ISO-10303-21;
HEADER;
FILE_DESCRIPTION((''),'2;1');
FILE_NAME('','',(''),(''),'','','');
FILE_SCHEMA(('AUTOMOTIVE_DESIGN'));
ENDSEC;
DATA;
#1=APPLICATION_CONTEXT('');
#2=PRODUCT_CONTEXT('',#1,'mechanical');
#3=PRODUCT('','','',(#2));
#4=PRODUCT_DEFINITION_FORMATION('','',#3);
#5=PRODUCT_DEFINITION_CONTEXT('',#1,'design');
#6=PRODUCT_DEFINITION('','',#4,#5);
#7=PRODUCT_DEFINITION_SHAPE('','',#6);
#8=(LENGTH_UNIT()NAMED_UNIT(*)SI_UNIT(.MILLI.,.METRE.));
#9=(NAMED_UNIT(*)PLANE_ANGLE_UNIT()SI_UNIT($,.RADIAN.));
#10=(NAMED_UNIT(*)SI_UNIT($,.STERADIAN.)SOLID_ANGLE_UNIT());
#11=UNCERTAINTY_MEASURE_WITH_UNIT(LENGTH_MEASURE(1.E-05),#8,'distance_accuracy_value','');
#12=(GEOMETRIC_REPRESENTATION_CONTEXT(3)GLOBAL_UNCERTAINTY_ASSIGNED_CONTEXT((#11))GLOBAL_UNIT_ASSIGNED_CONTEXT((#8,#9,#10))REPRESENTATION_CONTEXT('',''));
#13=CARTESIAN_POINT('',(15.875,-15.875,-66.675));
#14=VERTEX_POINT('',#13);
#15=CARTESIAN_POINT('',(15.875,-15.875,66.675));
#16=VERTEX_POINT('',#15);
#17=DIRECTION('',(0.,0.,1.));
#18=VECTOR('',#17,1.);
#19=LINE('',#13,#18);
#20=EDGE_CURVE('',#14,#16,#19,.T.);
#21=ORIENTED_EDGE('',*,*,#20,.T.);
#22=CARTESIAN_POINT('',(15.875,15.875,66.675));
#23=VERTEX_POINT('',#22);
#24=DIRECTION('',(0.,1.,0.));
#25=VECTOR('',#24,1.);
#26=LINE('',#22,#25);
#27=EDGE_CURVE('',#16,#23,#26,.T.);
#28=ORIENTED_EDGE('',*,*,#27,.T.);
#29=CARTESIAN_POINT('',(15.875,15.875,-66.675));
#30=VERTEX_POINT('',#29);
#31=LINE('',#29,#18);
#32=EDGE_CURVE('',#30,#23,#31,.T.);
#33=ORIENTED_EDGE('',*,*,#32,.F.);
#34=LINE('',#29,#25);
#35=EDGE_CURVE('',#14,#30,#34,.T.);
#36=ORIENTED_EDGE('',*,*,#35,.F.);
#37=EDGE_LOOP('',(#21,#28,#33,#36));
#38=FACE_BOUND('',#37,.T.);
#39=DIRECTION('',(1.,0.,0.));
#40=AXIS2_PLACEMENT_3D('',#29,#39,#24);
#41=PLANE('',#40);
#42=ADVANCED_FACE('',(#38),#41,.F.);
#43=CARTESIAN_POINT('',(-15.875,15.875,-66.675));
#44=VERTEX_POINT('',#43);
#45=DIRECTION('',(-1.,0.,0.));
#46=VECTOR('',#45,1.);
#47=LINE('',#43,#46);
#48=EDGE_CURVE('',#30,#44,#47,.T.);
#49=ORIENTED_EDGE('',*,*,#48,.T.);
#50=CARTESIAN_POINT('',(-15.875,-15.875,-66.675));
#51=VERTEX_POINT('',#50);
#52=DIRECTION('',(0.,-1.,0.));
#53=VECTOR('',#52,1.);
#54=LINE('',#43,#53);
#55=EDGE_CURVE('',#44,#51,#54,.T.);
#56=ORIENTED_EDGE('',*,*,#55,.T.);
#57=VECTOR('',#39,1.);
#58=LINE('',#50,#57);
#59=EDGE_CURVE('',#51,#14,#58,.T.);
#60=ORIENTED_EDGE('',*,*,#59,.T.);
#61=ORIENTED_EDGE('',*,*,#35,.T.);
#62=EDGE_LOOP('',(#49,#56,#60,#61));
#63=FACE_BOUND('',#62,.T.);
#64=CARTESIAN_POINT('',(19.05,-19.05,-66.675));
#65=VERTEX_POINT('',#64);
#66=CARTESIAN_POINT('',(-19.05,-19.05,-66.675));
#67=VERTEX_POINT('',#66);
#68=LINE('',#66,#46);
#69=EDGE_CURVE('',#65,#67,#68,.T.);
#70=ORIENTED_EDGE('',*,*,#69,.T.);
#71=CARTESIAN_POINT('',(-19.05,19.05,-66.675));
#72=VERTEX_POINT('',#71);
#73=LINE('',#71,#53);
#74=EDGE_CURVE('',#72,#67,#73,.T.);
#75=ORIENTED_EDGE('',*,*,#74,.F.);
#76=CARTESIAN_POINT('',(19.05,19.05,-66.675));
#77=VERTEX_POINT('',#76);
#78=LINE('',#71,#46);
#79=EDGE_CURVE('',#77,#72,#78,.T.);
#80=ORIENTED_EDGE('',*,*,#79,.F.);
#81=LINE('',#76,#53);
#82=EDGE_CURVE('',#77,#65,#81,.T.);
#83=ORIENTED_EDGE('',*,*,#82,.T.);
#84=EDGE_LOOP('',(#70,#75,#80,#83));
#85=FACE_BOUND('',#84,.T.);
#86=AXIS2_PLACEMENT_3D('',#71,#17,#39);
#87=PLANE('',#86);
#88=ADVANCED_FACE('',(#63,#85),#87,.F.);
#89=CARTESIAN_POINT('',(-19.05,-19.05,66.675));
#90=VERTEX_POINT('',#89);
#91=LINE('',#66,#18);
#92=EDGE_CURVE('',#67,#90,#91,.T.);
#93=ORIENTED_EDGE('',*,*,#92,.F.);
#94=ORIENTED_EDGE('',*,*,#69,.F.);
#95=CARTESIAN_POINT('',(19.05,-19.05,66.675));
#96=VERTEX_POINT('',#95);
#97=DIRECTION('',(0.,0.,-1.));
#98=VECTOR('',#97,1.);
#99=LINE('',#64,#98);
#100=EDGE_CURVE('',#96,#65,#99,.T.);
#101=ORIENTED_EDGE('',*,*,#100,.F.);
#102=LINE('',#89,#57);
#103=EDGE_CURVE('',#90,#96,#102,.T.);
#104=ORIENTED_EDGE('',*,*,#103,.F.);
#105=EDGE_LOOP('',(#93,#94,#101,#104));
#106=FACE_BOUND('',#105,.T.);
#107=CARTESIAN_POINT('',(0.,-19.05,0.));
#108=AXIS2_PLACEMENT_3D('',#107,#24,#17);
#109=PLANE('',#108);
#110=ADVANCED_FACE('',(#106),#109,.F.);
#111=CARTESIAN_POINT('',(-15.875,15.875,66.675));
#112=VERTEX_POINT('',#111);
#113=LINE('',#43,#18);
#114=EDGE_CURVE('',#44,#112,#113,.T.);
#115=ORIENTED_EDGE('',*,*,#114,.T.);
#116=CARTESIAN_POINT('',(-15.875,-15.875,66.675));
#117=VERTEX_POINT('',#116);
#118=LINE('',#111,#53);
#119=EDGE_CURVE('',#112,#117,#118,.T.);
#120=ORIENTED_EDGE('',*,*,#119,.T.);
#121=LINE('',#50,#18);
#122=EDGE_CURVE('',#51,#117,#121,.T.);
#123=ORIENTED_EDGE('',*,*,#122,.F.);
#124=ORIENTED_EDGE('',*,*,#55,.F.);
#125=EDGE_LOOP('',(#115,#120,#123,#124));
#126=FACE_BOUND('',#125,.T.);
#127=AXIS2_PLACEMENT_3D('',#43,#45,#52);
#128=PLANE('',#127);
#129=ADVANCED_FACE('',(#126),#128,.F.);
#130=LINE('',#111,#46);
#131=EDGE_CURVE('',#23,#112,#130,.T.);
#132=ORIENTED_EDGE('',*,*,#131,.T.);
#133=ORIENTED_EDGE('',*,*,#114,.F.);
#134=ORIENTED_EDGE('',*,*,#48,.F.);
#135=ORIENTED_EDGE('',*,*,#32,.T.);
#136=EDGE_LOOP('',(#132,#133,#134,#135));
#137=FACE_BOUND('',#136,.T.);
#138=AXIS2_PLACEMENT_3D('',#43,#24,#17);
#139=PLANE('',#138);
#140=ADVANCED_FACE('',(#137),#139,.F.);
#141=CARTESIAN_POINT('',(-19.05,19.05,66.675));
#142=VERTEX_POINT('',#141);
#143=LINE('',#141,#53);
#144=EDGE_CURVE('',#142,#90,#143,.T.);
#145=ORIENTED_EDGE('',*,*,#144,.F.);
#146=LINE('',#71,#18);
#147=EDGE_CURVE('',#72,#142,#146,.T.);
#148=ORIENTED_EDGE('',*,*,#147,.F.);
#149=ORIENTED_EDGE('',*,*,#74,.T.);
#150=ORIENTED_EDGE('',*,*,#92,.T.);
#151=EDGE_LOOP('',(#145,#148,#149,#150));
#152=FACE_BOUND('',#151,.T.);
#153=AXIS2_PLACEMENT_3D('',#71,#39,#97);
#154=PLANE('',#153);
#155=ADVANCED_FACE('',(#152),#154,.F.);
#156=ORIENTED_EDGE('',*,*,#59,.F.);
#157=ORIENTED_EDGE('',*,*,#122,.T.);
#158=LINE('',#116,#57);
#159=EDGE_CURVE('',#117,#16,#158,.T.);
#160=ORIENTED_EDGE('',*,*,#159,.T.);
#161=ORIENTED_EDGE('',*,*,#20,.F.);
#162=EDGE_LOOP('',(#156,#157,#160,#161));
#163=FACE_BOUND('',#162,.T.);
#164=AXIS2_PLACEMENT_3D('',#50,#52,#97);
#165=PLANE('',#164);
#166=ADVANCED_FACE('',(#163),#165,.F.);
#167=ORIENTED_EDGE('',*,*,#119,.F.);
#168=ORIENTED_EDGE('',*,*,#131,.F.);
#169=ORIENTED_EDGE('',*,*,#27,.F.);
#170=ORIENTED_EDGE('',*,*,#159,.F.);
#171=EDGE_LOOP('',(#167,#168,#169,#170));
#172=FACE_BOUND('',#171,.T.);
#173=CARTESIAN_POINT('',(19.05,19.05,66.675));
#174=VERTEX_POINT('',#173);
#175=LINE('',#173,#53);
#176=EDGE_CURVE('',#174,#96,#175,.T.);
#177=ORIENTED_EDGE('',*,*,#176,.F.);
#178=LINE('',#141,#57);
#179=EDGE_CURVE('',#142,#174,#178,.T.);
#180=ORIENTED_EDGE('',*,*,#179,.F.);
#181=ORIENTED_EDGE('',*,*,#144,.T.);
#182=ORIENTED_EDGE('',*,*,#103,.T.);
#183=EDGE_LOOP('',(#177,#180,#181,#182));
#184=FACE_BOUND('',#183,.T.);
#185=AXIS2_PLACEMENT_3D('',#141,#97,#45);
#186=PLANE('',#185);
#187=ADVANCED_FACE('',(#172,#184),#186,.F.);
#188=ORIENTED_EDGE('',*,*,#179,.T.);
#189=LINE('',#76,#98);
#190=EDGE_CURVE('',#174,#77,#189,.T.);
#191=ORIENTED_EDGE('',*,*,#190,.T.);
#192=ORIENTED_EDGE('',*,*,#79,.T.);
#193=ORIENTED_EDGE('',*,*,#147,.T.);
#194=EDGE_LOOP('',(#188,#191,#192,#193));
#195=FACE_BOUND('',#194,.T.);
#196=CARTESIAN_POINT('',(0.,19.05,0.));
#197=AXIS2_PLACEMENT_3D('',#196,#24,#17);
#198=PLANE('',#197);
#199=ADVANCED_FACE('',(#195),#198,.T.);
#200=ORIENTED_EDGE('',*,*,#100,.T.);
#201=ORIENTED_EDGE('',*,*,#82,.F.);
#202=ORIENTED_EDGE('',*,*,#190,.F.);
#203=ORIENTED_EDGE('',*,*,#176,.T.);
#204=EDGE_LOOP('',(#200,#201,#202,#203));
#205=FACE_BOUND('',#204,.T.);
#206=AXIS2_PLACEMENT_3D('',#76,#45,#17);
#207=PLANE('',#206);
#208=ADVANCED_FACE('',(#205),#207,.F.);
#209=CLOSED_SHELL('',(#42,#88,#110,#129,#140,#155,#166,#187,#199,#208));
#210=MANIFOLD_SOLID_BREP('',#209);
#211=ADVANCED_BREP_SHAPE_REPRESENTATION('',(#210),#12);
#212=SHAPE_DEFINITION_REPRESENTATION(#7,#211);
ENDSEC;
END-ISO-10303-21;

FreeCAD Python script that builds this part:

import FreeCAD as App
import Part
import Sketcher
from FreeCAD import Vector
Q = App.Units.Quantity


def add_polygon(sketch, points):
    """Adds a closed chain of lines whose ends are joined by coincident constraints."""
    first, n = sketch.GeometryCount, len(points)
    for a, b in zip(points, points[1:] + points[:1]):
        sketch.addGeometry(Part.LineSegment(App.Vector(*a, 0), App.Vector(*b, 0)), False)
    for i in range(n):
        sketch.addConstraint(Sketcher.Constraint("Coincident", first + i, 2, first + (i + 1) % n, 1))

doc = App.newDocument("Part")
body = doc.addObject("PartDesign::Body", "Body")

# Sketch on XZ plane
sketch1 = body.newObject("Sketcher::SketchObject", "Sketch")
sketch1.AttachmentSupport = (doc.getObject("XZ_Plane"), [""])
sketch1.MapMode = "FlatFace"
add_polygon(sketch1, [(-19.05, -66.675), (-19.05, 66.675), (19.05, 66.675), (19.05, -66.675)])  # lines 0-3
sketch1.addConstraint([
    Sketcher.Constraint("Vertical", 0),
    Sketcher.Constraint("Horizontal", 1),
    Sketcher.Constraint("Vertical", 2),
    Sketcher.Constraint("Horizontal", 3),
    Sketcher.Constraint("Symmetric", 0, 2, 2, 2, -1, 1),
    Sketcher.Constraint("DistanceX", 1, 1, 1, 2, Q("1.5 in")),
    Sketcher.Constraint("DistanceY", 0, 1, 0, 2, Q("5.25 in")),
])
pad1 = body.newObject("PartDesign::Pad", "Pad")
pad1.Profile = sketch1
pad1.Length = Q("1.5 in")
pad1.Midplane = True

# Sketch on XY plane
sketch2 = body.newObject("Sketcher::SketchObject", "Sketch001")
sketch2.AttachmentSupport = (doc.getObject("XY_Plane"), [""])
sketch2.MapMode = "FlatFace"
sketch2.AttachmentOffset = App.Placement(Vector(0, 0, 2.625 * 25.4), App.Rotation())
add_polygon(sketch2, [(-15.875, 15.875), (-15.875, -15.875), (15.875, -15.875), (15.875, 15.875)])  # lines 0-3
sketch2.addConstraint([
    Sketcher.Constraint("Vertical", 0),
    Sketcher.Constraint("Horizontal", 1),
    Sketcher.Constraint("Vertical", 2),
    Sketcher.Constraint("Horizontal", 3),
    Sketcher.Constraint("Symmetric", 0, 2, 2, 2, -1, 1),
    Sketcher.Constraint("Equal", 3, 0),
    Sketcher.Constraint("DistanceX", 1, 1, 1, 2, Q("1.25 in")),
])
pocket1 = body.newObject("PartDesign::Pocket", "Pocket")
pocket1.Profile = sketch2
pocket1.Type = "ThroughAll"

doc.recompute()
